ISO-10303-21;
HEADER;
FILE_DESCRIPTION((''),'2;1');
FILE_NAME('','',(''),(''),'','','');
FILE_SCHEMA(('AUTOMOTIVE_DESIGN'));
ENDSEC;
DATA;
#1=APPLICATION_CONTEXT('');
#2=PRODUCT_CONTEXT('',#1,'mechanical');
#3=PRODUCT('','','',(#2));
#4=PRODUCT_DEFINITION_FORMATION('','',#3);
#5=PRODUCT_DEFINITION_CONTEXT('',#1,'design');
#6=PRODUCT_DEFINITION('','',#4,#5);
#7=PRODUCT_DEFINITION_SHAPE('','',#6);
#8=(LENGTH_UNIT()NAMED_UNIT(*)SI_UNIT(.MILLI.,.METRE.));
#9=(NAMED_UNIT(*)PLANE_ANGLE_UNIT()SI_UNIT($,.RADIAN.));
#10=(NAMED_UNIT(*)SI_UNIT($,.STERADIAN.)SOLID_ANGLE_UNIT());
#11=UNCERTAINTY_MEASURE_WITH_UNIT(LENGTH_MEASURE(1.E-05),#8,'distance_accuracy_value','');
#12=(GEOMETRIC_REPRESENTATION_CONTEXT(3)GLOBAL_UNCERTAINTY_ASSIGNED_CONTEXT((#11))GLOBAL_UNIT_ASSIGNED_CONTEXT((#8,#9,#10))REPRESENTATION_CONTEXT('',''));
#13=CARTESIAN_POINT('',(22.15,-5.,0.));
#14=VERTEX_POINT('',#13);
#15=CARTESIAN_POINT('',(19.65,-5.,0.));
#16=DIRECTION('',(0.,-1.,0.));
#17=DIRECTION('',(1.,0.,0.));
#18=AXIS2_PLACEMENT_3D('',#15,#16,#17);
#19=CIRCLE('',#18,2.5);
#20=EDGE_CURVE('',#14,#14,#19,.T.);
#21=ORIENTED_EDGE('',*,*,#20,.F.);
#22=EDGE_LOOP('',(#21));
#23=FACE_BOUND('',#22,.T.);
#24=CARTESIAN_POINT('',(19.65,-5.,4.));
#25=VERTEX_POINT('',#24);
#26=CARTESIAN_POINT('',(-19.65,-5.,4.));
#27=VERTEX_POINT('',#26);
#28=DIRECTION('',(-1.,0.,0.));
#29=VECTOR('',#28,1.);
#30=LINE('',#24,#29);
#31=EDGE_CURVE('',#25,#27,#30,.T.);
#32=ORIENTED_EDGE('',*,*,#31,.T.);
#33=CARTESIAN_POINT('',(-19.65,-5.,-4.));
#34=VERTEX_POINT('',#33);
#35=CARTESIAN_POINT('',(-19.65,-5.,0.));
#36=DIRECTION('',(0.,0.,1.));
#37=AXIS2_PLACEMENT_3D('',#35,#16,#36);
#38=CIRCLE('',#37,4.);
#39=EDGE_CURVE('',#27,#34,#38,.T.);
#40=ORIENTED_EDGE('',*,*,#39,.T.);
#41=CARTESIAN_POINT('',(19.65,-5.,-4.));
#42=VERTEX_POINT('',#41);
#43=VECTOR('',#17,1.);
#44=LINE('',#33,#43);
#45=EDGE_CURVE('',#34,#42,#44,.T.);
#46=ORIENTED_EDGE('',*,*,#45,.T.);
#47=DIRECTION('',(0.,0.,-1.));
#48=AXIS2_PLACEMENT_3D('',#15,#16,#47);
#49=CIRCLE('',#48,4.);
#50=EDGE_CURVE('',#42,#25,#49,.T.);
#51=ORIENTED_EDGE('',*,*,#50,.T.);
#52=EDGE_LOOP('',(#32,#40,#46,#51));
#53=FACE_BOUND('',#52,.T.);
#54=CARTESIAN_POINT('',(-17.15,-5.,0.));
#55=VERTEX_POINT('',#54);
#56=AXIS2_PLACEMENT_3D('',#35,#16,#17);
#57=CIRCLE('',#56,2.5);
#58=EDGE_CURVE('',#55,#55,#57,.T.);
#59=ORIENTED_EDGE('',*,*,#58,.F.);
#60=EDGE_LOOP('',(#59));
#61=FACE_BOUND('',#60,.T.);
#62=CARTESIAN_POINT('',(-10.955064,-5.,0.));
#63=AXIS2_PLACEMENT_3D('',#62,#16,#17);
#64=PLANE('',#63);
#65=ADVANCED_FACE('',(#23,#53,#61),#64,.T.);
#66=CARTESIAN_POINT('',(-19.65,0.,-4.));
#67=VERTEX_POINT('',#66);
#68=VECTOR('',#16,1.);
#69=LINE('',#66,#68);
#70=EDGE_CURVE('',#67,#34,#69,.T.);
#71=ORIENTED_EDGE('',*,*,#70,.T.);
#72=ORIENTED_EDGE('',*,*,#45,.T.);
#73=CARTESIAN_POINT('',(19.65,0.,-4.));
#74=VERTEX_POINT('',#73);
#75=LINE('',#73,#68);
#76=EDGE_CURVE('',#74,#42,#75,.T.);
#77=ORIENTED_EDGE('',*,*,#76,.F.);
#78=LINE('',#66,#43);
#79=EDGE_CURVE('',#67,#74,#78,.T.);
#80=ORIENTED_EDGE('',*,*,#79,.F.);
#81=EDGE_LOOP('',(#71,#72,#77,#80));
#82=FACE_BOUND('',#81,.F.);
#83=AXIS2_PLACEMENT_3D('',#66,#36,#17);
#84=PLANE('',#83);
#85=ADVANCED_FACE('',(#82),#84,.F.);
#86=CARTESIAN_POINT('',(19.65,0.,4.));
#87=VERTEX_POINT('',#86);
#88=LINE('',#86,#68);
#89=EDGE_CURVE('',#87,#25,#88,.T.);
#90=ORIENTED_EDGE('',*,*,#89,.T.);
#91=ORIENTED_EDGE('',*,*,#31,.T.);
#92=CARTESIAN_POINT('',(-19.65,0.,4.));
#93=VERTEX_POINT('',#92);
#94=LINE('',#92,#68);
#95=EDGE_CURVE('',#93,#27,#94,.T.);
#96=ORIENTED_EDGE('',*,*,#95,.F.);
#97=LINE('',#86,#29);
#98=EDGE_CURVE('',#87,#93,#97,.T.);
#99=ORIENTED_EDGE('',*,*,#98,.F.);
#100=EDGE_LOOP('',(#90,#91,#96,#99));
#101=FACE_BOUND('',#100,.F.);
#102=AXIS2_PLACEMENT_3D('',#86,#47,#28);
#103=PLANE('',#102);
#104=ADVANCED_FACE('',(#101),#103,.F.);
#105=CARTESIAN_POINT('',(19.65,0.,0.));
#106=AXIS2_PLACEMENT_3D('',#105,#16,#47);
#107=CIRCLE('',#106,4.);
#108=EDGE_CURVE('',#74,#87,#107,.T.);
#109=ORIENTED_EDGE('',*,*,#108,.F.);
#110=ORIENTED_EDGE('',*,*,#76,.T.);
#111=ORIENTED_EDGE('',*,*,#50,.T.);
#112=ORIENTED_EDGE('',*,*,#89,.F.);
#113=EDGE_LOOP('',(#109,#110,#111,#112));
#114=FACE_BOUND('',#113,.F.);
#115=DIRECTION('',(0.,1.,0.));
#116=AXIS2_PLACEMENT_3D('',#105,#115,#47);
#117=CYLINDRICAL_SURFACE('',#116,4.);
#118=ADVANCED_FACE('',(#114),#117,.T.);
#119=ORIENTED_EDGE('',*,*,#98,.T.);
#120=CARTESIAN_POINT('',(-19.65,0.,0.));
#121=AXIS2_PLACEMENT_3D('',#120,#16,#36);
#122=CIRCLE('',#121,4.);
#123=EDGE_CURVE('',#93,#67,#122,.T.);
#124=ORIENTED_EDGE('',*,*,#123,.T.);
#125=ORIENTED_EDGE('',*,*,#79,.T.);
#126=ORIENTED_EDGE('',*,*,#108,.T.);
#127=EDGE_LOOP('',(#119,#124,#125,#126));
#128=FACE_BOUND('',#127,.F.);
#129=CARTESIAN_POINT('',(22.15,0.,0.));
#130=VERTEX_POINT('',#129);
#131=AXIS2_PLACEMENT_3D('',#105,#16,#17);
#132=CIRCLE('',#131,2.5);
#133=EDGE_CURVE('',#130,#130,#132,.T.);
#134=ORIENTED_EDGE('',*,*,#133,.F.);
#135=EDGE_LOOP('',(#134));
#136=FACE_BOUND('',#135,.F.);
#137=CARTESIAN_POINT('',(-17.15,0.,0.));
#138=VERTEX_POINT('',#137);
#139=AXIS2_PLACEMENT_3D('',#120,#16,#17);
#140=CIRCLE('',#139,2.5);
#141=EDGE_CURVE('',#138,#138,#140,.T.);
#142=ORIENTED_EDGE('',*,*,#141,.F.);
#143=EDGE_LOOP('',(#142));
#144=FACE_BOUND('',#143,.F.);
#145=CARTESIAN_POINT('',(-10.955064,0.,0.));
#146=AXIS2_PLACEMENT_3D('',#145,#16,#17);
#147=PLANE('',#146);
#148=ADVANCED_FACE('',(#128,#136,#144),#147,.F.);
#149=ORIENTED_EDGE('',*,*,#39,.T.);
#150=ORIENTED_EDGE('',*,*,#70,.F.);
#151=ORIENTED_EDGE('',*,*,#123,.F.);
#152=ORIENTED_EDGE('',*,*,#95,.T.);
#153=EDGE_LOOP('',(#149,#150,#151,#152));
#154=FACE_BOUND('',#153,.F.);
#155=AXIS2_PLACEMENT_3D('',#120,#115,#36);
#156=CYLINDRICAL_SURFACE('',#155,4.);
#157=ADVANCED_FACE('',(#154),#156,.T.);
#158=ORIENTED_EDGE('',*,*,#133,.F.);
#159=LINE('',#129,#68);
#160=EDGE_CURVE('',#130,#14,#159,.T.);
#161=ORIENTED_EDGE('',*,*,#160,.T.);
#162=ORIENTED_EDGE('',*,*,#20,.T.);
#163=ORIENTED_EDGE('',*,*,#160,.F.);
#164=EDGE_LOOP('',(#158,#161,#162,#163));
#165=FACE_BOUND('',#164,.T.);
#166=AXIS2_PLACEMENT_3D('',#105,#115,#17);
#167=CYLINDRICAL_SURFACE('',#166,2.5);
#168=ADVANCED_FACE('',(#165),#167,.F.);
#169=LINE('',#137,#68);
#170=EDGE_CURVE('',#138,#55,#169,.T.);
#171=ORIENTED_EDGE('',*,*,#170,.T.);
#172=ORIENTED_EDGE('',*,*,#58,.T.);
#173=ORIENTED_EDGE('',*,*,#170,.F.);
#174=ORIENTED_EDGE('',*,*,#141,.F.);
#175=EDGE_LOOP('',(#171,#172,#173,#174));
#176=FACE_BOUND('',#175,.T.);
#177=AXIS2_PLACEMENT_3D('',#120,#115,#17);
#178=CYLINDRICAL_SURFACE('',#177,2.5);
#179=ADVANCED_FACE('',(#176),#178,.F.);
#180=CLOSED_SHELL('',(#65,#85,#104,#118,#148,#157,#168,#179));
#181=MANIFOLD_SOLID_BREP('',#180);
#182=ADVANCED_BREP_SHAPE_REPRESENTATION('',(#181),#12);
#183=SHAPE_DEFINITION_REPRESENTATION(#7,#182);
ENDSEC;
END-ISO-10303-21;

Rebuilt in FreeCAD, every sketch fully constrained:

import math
import FreeCAD as App
import Part
import Sketcher
from FreeCAD import Vector

doc = App.newDocument("Part")
body = doc.addObject("PartDesign::Body", "Body")

# Sketch on XZ plane
sketch1 = doc.addObject("Sketcher::SketchObject", "Sketch")
body.addObject(sketch1)
sketch1.AttachmentSupport = (doc.XZ_Plane, [""])
sketch1.MapMode = "FlatFace"
sketch1.addGeometry([
    Part.ArcOfCircle(Part.Circle(Vector(-19.6, 0, 0), Vector(0, 0, 1), 4), math.radians(90), math.radians(270)),  # 0
    Part.LineSegment(Vector(-19.6, -4, 0), Vector(19.6, -4, 0)),  # 1
    Part.ArcOfCircle(Part.Circle(Vector(19.6, 0, 0), Vector(0, 0, 1), 4), math.radians(-90), math.radians(90)),  # 2
    Part.LineSegment(Vector(19.6, 4, 0), Vector(-19.6, 4, 0)),  # 3
    Part.Circle(Vector(-19.6, 0, 0), Vector(0, 0, 1), 2.5),  # 4
    Part.Circle(Vector(19.6, 0, 0), Vector(0, 0, 1), 2.5),  # 5
], False)
sketch1.addConstraint([
    Sketcher.Constraint("Tangent", 0, 2, 1, 1),
    Sketcher.Constraint("Tangent", 1, 2, 2, 1),
    Sketcher.Constraint("Tangent", 2, 2, 3, 1),
    Sketcher.Constraint("Tangent", 3, 2, 0, 1),
    Sketcher.Constraint("Horizontal", 1),
    Sketcher.Constraint("Horizontal", 3),
    Sketcher.Constraint("Coincident", 4, 3, 0, 3),
    Sketcher.Constraint("Coincident", 5, 3, 2, 3),
    Sketcher.Constraint("Equal", 4, 5),
    Sketcher.Constraint("Symmetric", 0, 3, 2, 3, -1, 1),
    Sketcher.Constraint("Diameter", 4, 5.0),
    Sketcher.Constraint("Radius", 0, 4.0),
    Sketcher.Constraint("DistanceX", 1, 1, 1, 2, 39.3),
])
pad1 = doc.addObject("PartDesign::Pad", "Pad")
body.addObject(pad1)
pad1.Profile = sketch1
pad1.Length = 5

doc.recompute()
